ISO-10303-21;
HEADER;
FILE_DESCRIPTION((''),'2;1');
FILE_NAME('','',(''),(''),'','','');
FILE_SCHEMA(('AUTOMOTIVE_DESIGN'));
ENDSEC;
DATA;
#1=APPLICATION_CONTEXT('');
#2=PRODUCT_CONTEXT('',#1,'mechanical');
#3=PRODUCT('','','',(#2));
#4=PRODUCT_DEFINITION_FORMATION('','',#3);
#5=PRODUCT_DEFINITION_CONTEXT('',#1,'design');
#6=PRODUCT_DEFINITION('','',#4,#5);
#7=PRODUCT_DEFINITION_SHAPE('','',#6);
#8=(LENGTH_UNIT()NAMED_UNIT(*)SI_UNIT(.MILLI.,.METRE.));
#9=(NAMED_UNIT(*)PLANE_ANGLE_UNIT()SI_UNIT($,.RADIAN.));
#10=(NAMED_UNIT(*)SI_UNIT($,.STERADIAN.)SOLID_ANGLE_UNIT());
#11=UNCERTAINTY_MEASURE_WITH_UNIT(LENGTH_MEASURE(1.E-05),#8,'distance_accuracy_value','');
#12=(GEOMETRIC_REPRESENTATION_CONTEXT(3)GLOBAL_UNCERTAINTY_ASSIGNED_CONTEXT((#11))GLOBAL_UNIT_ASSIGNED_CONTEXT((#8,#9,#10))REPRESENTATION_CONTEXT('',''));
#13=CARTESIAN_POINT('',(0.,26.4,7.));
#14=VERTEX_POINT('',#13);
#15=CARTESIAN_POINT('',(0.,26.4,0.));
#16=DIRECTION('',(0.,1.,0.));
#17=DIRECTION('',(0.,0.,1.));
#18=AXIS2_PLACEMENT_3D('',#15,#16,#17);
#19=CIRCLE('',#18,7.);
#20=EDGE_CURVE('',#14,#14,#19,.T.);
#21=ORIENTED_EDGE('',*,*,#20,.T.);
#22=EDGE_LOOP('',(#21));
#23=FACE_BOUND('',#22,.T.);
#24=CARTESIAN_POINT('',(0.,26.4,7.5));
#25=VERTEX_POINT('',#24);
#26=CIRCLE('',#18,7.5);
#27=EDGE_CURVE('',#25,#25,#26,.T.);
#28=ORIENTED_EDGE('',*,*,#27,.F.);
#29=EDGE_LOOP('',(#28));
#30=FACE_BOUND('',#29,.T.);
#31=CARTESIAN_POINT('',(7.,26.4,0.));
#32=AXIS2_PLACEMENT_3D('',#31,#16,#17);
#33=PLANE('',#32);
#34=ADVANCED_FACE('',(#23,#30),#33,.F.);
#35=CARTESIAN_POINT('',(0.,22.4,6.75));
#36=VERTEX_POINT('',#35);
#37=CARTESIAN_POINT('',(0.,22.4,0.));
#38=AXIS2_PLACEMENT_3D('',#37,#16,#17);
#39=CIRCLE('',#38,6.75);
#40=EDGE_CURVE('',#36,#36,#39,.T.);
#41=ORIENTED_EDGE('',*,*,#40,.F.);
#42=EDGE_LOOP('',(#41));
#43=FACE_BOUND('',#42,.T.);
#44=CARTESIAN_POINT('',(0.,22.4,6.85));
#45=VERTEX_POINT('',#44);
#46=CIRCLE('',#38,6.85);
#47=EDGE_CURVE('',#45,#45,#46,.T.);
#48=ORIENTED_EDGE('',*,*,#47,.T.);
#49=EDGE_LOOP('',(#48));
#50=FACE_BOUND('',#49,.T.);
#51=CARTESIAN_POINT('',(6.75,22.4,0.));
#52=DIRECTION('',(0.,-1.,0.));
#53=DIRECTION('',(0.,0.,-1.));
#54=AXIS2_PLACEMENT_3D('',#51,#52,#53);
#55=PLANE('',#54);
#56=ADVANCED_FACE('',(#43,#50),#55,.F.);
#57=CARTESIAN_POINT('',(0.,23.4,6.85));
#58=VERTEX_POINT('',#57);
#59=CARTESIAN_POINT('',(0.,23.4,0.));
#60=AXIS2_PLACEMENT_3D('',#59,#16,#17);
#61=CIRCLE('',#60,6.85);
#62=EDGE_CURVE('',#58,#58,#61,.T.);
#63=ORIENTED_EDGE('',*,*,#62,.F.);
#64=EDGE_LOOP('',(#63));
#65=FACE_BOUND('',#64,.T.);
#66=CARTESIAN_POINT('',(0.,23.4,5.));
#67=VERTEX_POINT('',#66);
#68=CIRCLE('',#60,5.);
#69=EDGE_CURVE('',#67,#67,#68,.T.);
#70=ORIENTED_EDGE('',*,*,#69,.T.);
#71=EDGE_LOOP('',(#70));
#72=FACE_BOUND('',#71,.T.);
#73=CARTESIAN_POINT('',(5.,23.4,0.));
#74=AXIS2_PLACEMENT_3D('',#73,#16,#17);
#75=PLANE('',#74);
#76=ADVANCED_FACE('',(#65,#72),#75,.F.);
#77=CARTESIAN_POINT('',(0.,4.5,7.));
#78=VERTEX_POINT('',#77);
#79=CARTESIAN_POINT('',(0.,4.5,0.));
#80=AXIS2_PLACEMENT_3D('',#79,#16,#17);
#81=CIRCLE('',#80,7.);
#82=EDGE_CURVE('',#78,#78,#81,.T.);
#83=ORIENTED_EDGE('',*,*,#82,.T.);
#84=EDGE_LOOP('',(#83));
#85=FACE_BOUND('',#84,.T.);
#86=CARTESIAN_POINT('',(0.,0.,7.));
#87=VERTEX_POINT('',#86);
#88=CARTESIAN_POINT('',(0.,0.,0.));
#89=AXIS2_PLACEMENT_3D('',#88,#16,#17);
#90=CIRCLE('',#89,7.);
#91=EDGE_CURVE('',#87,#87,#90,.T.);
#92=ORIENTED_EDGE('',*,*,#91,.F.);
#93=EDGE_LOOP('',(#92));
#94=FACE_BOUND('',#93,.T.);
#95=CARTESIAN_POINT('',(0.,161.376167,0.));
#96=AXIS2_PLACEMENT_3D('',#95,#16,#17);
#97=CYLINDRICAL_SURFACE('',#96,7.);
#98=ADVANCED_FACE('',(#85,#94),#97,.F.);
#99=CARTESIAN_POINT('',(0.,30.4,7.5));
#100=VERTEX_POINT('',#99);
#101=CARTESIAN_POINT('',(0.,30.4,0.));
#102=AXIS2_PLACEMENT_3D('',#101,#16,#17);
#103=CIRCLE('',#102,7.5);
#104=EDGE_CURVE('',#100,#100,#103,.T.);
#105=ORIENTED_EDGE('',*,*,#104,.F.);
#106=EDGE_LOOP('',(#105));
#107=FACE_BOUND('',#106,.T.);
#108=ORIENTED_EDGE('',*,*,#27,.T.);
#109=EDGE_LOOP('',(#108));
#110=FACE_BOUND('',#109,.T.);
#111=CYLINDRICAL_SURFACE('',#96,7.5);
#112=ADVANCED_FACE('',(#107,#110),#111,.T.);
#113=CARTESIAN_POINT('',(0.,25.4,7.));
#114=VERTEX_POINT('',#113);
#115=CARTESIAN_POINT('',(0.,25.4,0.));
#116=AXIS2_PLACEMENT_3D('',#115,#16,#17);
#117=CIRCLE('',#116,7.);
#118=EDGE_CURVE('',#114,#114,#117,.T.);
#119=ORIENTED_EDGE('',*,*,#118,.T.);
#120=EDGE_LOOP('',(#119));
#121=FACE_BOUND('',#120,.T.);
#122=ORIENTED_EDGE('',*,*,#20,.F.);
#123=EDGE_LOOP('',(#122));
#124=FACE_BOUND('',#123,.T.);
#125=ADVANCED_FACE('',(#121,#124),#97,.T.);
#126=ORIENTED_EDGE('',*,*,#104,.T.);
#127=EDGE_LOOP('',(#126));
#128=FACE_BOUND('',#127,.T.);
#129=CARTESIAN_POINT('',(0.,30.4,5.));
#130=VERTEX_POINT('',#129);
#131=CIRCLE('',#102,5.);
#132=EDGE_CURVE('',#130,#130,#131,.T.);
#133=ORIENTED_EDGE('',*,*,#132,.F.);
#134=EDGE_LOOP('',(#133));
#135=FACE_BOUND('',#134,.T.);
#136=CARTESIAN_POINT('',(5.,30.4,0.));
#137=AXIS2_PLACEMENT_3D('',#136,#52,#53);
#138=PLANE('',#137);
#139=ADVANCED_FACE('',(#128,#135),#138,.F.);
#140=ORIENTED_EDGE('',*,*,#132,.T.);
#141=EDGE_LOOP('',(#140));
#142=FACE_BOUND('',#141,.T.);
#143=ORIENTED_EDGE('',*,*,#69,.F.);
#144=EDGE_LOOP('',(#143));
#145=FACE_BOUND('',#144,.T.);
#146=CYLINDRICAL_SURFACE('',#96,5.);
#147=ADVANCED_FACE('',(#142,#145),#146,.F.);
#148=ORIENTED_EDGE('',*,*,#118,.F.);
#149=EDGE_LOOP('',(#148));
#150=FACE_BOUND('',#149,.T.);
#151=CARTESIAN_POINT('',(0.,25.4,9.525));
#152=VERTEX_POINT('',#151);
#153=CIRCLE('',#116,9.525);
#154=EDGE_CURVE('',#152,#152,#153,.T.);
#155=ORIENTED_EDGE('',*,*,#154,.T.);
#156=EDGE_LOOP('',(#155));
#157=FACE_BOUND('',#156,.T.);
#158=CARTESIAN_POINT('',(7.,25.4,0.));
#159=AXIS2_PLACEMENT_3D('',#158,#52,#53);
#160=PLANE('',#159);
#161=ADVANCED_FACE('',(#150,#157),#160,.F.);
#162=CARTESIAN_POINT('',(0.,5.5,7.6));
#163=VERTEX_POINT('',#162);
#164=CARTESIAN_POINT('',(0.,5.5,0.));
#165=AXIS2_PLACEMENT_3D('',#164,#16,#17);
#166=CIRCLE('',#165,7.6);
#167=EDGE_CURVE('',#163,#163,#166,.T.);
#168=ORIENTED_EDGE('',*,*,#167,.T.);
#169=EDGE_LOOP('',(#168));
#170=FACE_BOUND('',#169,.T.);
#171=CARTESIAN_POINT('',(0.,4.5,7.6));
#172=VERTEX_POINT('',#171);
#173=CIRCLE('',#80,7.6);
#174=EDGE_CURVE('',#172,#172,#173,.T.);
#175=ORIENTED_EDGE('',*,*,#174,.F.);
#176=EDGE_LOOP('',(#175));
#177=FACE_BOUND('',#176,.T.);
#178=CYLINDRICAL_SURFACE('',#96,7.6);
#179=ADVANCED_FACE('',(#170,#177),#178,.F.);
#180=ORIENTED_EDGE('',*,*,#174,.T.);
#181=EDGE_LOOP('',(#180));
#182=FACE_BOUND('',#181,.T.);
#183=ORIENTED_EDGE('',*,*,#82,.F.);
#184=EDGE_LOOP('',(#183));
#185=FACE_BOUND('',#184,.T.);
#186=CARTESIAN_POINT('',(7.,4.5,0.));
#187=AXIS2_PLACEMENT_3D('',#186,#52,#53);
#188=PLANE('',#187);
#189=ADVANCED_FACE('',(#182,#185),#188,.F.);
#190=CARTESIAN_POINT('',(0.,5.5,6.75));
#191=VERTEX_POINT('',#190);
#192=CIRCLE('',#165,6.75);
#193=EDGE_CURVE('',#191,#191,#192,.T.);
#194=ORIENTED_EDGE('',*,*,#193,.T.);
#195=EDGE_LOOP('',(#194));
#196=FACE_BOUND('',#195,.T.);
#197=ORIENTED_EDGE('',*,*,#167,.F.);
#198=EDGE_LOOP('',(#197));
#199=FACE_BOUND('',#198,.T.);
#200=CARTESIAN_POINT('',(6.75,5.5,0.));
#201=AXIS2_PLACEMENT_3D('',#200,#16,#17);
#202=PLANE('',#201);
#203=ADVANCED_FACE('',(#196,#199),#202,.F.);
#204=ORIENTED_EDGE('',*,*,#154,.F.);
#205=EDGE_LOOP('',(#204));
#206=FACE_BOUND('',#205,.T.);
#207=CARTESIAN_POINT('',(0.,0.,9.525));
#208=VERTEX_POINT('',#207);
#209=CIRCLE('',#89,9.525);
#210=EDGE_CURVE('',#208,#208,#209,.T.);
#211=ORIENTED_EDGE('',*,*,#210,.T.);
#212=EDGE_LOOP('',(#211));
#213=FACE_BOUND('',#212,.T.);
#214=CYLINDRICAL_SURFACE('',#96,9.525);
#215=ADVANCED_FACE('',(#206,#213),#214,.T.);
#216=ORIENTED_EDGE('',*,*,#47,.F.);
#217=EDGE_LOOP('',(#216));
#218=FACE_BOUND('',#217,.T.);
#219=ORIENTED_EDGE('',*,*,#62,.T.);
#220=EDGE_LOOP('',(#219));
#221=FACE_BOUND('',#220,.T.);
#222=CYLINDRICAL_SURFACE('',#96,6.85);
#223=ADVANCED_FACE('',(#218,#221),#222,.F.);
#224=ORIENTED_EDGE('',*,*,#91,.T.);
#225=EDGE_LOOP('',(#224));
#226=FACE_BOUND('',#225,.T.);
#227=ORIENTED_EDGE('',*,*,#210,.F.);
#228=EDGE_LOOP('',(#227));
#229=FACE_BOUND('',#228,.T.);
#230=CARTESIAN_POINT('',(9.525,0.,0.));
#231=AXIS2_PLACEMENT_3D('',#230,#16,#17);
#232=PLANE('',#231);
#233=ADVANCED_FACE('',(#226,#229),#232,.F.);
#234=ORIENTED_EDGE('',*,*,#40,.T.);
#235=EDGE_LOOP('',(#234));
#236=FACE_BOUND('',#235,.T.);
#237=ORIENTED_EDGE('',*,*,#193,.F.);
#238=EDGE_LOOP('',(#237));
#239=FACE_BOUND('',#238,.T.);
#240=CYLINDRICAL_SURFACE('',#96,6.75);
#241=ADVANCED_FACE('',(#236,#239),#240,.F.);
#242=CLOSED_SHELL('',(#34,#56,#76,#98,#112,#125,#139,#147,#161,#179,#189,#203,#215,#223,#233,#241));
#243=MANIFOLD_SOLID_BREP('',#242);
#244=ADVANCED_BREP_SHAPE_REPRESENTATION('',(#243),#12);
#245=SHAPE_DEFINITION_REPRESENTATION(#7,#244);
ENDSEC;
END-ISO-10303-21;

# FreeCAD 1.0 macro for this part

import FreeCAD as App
import Part
import Sketcher

V = App.Vector


def add_polygon(sketch, points):
    """Adds a closed chain of lines whose ends are joined by coincident constraints."""
    first, n = sketch.GeometryCount, len(points)
    for a, b in zip(points, points[1:] + points[:1]):
        sketch.addGeometry(Part.LineSegment(App.Vector(*a, 0), App.Vector(*b, 0)), False)
    for i in range(n):
        sketch.addConstraint(Sketcher.Constraint("Coincident", first + i, 2, first + (i + 1) % n, 1))

doc = App.newDocument("Part")
body = doc.addObject("PartDesign::Body", "Body")

# Sketch on XY plane
sketch1 = body.newObject("Sketcher::SketchObject", "Sketch")
sketch1.AttachmentSupport = (doc.getObject("XY_Plane"), [""])
sketch1.MapMode = "FlatFace"
add_polygon(sketch1, [(7, 26.4), (7.5, 26.4), (7.5, 30.4), (5, 30.4), (5, 23.4), (6.85, 23.4), (6.85, 22.4), (6.75, 22.4), (6.75, 5.5), (7.6, 5.5), (7.6, 4.5), (7, 4.5), (7, 0), (9.53, 0), (9.53, 25.4), (7, 25.4)])  # lines 0-15
sketch1.addConstraint(Sketcher.Constraint("Horizontal", 0))
sketch1.addConstraint(Sketcher.Constraint("Vertical", 1))
sketch1.addConstraint(Sketcher.Constraint("Horizontal", 2))
sketch1.addConstraint(Sketcher.Constraint("Vertical", 3))
sketch1.addConstraint(Sketcher.Constraint("Horizontal", 4))
sketch1.addConstraint(Sketcher.Constraint("Vertical", 5))
sketch1.addConstraint(Sketcher.Constraint("Horizontal", 6))
sketch1.addConstraint(Sketcher.Constraint("Vertical", 7))
sketch1.addConstraint(Sketcher.Constraint("Horizontal", 8))
sketch1.addConstraint(Sketcher.Constraint("Vertical", 9))
sketch1.addConstraint(Sketcher.Constraint("Horizontal", 10))
sketch1.addConstraint(Sketcher.Constraint("Vertical", 11))
sketch1.addConstraint(Sketcher.Constraint("Horizontal", 12))
sketch1.addConstraint(Sketcher.Constraint("Vertical", 13))
sketch1.addConstraint(Sketcher.Constraint("Horizontal", 14))
sketch1.addConstraint(Sketcher.Constraint("Vertical", 15))
sketch1.addConstraint(Sketcher.Constraint("PointOnObject", 11, 2, -1))
sketch1.addConstraint(Sketcher.Constraint("Vertical", 11, 2, 14, 2))
sketch1.addConstraint(Sketcher.Constraint("Equal", 5, 9))
sketch1.addConstraint(Sketcher.Constraint("Equal", 9, 15))
sketch1.addConstraint(Sketcher.Constraint("DistanceY", 1, 1, 1, 2, 4.0))
sketch1.addConstraint(Sketcher.Constraint("DistanceY", 3, 2, 3, 1, 7.0))
sketch1.addConstraint(Sketcher.Constraint("DistanceY", 5, 2, 5, 1, 1.0))
sketch1.addConstraint(Sketcher.Constraint("DistanceX", 0, 1, 0, 2, 0.5))
sketch1.addConstraint(Sketcher.Constraint("DistanceX", 2, 2, 2, 1, 2.5))
sketch1.addConstraint(Sketcher.Constraint("DistanceX", 6, 2, 6, 1, 0.1))
sketch1.addConstraint(Sketcher.Constraint("DistanceX", 10, 2, 10, 1, 0.6))
sketch1.addConstraint(Sketcher.Constraint("DistanceY", 7, 2, 7, 1, 16.9))
sketch1.addConstraint(Sketcher.Constraint("DistanceY", 11, 2, 11, 1, 4.5))
sketch1.addConstraint(Sketcher.Constraint("DistanceX", -1, 1, 2, 2, 5.0))
sketch1.addConstraint(Sketcher.Constraint("DistanceX", 4, 1, 4, 2, 1.85))
sketch1.addConstraint(Sketcher.Constraint("DistanceX", 12, 1, 12, 2, 2.525))
revolution = body.newObject("PartDesign::Revolution", "Revolution")
revolution.Profile = sketch1
revolution.ReferenceAxis = (sketch1, ["V_Axis"])
revolution.Angle = 360

doc.recompute()
